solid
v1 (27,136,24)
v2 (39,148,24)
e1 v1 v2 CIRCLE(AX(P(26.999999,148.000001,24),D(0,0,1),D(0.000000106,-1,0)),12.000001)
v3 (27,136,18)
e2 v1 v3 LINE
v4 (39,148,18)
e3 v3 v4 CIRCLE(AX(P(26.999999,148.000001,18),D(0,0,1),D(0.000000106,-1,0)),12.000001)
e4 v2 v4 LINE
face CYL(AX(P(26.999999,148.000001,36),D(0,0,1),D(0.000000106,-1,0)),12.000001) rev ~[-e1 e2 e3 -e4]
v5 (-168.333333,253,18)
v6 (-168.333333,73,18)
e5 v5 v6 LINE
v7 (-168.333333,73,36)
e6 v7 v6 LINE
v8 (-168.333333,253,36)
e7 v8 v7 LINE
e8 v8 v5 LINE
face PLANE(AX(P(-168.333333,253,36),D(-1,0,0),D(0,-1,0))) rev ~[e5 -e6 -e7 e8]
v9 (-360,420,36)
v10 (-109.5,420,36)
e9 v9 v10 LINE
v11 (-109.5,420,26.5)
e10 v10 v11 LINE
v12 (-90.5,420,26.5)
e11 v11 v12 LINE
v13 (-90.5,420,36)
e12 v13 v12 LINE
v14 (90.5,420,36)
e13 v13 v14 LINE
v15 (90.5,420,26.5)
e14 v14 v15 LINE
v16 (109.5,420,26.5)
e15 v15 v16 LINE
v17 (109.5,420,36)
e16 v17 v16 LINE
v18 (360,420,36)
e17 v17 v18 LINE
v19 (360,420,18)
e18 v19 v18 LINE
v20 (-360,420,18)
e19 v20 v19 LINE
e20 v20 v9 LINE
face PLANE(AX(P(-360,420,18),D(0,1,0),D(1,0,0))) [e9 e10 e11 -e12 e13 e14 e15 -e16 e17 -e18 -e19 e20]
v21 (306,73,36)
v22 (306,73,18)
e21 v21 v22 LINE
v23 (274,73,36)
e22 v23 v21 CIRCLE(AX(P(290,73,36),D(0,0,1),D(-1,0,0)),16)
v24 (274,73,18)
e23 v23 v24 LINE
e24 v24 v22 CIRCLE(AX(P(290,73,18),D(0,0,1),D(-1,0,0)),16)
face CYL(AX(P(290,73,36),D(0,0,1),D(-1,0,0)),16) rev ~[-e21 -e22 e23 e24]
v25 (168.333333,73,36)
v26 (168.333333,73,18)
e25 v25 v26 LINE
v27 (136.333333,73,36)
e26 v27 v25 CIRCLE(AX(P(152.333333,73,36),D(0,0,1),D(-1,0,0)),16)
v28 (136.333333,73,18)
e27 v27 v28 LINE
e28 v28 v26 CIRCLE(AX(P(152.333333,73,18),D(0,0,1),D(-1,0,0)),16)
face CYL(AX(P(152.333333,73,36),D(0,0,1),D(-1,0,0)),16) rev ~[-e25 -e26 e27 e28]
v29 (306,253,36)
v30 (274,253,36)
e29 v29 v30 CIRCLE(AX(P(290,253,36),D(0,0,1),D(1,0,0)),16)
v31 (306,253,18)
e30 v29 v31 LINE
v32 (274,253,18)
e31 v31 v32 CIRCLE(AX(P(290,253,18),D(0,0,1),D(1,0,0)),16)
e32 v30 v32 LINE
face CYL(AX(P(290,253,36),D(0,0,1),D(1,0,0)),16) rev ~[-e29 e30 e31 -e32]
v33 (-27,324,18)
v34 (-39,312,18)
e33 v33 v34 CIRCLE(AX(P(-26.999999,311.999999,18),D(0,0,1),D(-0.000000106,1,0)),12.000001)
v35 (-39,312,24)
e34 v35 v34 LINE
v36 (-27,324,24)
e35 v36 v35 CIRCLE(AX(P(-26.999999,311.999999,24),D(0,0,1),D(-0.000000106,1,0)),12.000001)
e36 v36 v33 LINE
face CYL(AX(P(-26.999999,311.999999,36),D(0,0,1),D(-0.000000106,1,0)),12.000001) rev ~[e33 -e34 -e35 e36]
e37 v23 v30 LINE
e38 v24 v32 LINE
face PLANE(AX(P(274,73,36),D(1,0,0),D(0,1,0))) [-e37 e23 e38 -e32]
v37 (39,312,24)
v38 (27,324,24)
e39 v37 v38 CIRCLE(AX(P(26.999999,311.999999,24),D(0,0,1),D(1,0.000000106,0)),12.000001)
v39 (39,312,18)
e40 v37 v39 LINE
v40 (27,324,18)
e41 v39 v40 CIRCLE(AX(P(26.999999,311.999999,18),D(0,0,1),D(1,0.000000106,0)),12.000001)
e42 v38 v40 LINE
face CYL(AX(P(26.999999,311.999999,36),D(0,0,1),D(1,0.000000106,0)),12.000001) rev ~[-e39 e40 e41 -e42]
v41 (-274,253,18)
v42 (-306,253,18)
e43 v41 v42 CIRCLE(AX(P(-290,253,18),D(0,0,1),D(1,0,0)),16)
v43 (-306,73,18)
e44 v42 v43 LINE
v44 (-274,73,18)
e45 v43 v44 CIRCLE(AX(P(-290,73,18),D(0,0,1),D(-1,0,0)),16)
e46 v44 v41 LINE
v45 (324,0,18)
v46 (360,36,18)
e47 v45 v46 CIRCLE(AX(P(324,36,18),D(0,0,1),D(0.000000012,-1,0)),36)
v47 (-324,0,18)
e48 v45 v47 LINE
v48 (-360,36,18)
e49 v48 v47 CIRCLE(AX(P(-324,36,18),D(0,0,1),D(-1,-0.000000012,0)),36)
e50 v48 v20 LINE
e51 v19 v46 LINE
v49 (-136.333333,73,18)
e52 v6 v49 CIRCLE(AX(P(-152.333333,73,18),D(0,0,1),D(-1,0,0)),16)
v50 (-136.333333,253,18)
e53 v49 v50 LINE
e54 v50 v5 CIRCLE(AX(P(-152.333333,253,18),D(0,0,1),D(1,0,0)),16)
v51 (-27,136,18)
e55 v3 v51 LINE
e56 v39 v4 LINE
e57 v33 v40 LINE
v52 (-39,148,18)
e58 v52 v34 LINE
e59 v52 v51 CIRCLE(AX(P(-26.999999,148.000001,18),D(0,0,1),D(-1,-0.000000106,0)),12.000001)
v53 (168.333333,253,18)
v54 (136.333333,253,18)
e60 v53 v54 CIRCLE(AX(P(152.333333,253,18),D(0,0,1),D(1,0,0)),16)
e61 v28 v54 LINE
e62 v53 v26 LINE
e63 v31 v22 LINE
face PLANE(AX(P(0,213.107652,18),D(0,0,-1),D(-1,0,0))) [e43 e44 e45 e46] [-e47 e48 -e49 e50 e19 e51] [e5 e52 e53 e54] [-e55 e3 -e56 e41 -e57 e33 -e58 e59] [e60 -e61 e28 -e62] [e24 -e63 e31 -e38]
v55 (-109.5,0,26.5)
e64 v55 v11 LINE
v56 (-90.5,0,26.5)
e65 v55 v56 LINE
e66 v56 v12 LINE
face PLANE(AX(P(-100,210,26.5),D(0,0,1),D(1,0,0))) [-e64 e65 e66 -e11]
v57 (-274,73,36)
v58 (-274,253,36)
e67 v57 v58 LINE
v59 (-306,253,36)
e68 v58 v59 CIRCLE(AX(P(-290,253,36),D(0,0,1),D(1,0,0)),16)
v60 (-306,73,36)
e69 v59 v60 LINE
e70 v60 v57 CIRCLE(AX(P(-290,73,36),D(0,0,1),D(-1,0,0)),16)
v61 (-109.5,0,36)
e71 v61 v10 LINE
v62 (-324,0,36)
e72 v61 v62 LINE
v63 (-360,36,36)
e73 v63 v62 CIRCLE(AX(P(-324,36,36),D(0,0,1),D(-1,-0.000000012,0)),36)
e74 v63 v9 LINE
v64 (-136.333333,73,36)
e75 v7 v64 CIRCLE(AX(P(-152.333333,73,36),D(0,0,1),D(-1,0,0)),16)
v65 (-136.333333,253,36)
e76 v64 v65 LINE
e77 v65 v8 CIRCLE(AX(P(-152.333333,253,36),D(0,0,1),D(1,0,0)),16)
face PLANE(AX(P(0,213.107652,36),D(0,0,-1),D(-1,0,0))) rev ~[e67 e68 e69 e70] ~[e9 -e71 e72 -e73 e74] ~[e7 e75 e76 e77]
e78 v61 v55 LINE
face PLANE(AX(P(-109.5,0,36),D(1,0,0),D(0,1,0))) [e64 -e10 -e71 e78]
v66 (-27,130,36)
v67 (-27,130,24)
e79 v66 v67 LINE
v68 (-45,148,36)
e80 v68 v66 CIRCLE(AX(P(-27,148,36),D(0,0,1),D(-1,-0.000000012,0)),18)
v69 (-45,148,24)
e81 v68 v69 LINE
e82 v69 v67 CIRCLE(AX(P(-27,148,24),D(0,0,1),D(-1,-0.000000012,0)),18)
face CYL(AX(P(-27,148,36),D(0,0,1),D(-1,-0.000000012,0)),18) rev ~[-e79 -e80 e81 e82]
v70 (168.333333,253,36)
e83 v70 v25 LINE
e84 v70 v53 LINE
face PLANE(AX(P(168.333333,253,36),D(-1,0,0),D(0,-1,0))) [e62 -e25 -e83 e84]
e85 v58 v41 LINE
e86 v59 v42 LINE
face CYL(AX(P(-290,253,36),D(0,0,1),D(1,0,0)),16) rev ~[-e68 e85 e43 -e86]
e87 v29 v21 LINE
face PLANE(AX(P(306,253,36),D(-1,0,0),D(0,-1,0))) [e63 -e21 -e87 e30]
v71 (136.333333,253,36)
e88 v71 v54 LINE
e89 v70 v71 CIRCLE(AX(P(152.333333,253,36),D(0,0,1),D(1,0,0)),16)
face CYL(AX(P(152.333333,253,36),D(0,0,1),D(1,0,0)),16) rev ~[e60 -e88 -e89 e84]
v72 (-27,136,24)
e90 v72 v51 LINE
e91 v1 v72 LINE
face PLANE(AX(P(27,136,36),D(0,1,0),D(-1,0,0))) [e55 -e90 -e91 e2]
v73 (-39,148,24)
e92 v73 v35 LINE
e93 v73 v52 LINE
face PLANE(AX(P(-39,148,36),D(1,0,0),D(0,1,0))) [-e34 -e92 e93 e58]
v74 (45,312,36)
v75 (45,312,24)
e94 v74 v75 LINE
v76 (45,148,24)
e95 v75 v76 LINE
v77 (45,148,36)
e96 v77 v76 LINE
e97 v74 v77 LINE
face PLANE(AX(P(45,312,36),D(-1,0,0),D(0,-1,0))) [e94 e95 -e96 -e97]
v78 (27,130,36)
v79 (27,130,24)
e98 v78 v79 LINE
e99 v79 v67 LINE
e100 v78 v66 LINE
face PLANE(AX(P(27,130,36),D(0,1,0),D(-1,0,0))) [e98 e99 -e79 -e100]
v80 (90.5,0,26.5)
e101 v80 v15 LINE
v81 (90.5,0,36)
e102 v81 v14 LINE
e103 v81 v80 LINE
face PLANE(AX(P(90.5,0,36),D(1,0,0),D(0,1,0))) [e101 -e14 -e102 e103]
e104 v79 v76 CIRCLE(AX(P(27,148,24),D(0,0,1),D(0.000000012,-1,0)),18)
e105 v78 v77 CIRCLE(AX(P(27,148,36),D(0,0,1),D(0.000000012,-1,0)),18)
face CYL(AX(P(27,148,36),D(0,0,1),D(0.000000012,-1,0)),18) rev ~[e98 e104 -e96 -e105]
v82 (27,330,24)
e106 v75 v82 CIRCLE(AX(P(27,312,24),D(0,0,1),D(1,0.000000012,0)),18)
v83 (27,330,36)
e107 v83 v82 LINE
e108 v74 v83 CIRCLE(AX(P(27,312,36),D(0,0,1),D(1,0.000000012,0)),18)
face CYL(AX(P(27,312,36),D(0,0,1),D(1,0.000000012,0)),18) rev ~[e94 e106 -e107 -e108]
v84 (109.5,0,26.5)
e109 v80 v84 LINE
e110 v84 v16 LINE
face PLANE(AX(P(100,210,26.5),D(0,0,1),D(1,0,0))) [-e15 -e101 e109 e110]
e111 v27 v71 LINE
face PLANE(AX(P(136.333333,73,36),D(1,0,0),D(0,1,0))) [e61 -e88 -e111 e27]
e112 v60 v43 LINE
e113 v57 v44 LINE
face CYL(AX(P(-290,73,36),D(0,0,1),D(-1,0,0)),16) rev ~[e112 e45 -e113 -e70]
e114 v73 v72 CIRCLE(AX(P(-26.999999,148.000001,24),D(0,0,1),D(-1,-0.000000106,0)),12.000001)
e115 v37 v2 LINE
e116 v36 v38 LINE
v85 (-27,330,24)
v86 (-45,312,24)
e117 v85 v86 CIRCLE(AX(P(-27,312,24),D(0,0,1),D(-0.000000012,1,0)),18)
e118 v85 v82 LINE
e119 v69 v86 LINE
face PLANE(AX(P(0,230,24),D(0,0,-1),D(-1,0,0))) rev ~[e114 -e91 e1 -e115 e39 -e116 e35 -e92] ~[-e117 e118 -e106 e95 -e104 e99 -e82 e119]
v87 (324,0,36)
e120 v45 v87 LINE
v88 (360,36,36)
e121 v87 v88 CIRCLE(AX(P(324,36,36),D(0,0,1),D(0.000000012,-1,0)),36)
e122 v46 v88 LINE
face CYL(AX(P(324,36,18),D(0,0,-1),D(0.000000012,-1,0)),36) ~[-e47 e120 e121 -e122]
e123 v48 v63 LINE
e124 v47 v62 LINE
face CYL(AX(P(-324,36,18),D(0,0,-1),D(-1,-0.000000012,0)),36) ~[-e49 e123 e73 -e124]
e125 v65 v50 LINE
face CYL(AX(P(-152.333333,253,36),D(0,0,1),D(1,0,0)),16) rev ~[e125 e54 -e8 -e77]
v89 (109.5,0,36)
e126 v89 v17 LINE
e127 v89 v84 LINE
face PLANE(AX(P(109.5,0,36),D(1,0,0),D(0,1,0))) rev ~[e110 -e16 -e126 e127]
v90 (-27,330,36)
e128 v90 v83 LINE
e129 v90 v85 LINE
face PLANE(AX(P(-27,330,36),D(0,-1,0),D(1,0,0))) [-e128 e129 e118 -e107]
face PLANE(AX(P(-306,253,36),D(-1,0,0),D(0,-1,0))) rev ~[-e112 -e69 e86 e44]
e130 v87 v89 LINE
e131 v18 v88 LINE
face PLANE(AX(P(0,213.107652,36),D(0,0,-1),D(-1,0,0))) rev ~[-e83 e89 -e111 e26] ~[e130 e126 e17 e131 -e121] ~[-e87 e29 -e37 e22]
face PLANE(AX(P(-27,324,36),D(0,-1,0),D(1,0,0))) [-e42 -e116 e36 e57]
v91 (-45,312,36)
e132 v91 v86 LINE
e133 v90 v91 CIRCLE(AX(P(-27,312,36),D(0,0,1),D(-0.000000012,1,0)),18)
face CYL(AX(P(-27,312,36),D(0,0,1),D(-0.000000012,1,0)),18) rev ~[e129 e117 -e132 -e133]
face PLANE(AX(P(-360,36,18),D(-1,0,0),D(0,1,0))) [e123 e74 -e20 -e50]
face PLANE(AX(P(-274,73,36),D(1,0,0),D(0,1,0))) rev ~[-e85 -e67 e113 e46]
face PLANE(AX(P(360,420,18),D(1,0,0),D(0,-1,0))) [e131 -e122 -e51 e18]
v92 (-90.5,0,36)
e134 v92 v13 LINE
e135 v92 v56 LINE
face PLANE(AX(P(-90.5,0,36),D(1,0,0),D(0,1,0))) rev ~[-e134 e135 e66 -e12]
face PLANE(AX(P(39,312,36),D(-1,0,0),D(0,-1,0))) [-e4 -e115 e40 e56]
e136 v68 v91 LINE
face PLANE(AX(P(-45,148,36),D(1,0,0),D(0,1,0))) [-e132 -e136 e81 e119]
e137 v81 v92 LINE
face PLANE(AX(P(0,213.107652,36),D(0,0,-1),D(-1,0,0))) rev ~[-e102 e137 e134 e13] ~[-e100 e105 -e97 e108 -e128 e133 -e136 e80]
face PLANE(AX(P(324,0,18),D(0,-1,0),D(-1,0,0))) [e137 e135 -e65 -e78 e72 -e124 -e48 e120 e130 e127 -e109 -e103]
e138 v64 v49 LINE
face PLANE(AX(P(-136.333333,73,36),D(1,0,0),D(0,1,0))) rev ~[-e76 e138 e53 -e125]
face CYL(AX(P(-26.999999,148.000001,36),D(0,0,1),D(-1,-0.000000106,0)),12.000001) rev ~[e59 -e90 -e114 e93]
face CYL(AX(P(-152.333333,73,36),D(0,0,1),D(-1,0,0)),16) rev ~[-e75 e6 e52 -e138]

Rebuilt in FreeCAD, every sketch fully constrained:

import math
import FreeCAD as App
import Part
import Sketcher

V = App.Vector
Q = App.Units.Quantity

doc = App.newDocument("Part")
body = doc.addObject("PartDesign::Body", "Body")

# Sketch on XY plane
sketch1 = body.newObject("Sketcher::SketchObject", "Sketch")
sketch1.AttachmentSupport = (doc.getObject("XY_Plane"), [""])
sketch1.MapMode = "FlatFace"
sketch1.addGeometry([
    Part.LineSegment(V(360, 420, 0), V(-360, 420, 0)),  # 0
    Part.LineSegment(V(-360, 420, 0), V(-360, 36, 0)),  # 1
    Part.ArcOfCircle(Part.Circle(V(-324, 36, 0), V(0, 0, 1), 36), math.radians(-180), math.radians(-90)),  # 2
    Part.LineSegment(V(-324, 0, 0), V(324, 0, 0)),  # 3
    Part.ArcOfCircle(Part.Circle(V(324, 36, 0), V(0, 0, 1), 36), math.radians(-90), math.radians(0)),  # 4
    Part.LineSegment(V(360, 36, 0), V(360, 420, 0)),  # 5
], False)
sketch1.addConstraint([
    Sketcher.Constraint("Coincident", 0, 2, 1, 1),
    Sketcher.Constraint("Tangent", 1, 2, 2, 1),
    Sketcher.Constraint("Tangent", 2, 2, 3, 1),
    Sketcher.Constraint("Tangent", 3, 2, 4, 1),
    Sketcher.Constraint("Tangent", 4, 2, 5, 1),
    Sketcher.Constraint("Coincident", 5, 2, 0, 1),
    Sketcher.Constraint("Horizontal", 0),
    Sketcher.Constraint("Vertical", 1),
    Sketcher.Constraint("Horizontal", 3),
    Sketcher.Constraint("Vertical", 5),
    Sketcher.Constraint("Equal", 2, 4),
    Sketcher.Constraint("Symmetric", 2, 2, 3, 2, -1, 1),
    Sketcher.Constraint("Radius", 2, Q("36 mm")),
    Sketcher.Constraint("DistanceX", 0, 2, 0, 1, Q("720 mm")),
    Sketcher.Constraint("DistanceY", 1, 2, 1, 1, Q("384 mm")),
])
pad1 = body.newObject("PartDesign::Pad", "Pad")
pad1.Profile = sketch1
pad1.Length = 18

# Sketch on XY plane
sketch2 = body.newObject("Sketcher::SketchObject", "Sketch001")
sketch2.AttachmentSupport = (doc.getObject("XY_Plane"), [""])
sketch2.MapMode = "FlatFace"
sketch2.AttachmentOffset = App.Placement(V(0, 0, 18), App.Rotation())
sketch2.addGeometry([
    Part.ArcOfCircle(Part.Circle(V(-290, 253, 0), V(0, 0, 1), 16), math.radians(0), math.radians(180)),  # 0
    Part.LineSegment(V(-306, 253, 0), V(-306, 73, 0)),  # 1
    Part.ArcOfCircle(Part.Circle(V(-290, 73, 0), V(0, 0, 1), 16), math.radians(180), math.radians(360)),  # 2
    Part.LineSegment(V(-274, 73, 0), V(-274, 253, 0)),  # 3
    Part.ArcOfCircle(Part.Circle(V(-152, 253, 0), V(0, 0, 1), 16), math.radians(0), math.radians(180)),  # 4
    Part.LineSegment(V(-168, 253, 0), V(-168, 73, 0)),  # 5
    Part.ArcOfCircle(Part.Circle(V(-152, 73, 0), V(0, 0, 1), 16), math.radians(180), math.radians(360)),  # 6
    Part.LineSegment(V(-136, 73, 0), V(-136, 253, 0)),  # 7
    Part.ArcOfCircle(Part.Circle(V(290, 253, 0), V(0, 0, 1), 16), math.radians(0), math.radians(180)),  # 8
    Part.LineSegment(V(274, 253, 0), V(274, 73, 0)),  # 9
    Part.ArcOfCircle(Part.Circle(V(290, 73, 0), V(0, 0, 1), 16), math.radians(180), math.radians(360)),  # 10
    Part.LineSegment(V(306, 73, 0), V(306, 253, 0)),  # 11
    Part.ArcOfCircle(Part.Circle(V(152, 253, 0), V(0, 0, 1), 16), math.radians(0), math.radians(180)),  # 12
    Part.LineSegment(V(136, 253, 0), V(136, 73, 0)),  # 13
    Part.ArcOfCircle(Part.Circle(V(152, 73, 0), V(0, 0, 1), 16), math.radians(180), math.radians(360)),  # 14
    Part.LineSegment(V(168, 73, 0), V(168, 253, 0)),  # 15
    Part.LineSegment(V(27, 324, 0), V(-27, 324, 0)),  # 16
    Part.ArcOfCircle(Part.Circle(V(-27, 312, 0), V(0, 0, 1), 12), math.radians(90), math.radians(180)),  # 17
    Part.LineSegment(V(-39, 312, 0), V(-39, 148, 0)),  # 18
    Part.ArcOfCircle(Part.Circle(V(-27, 148, 0), V(0, 0, 1), 12), math.radians(-180), math.radians(-90)),  # 19
    Part.LineSegment(V(-27, 136, 0), V(27, 136, 0)),  # 20
    Part.ArcOfCircle(Part.Circle(V(27, 148, 0), V(0, 0, 1), 12), math.radians(-90), math.radians(0)),  # 21
    Part.LineSegment(V(39, 148, 0), V(39, 312, 0)),  # 22
    Part.ArcOfCircle(Part.Circle(V(27, 312, 0), V(0, 0, 1), 12), math.radians(0), math.radians(90)),  # 23
], False)
sketch2.addConstraint([
    Sketcher.Constraint("Tangent", 0, 2, 1, 1),
    Sketcher.Constraint("Tangent", 1, 2, 2, 1),
    Sketcher.Constraint("Tangent", 2, 2, 3, 1),
    Sketcher.Constraint("Tangent", 3, 2, 0, 1),
    Sketcher.Constraint("Tangent", 4, 2, 5, 1),
    Sketcher.Constraint("Tangent", 5, 2, 6, 1),
    Sketcher.Constraint("Tangent", 6, 2, 7, 1),
    Sketcher.Constraint("Tangent", 7, 2, 4, 1),
    Sketcher.Constraint("Tangent", 8, 2, 9, 1),
    Sketcher.Constraint("Tangent", 9, 2, 10, 1),
    Sketcher.Constraint("Tangent", 10, 2, 11, 1),
    Sketcher.Constraint("Tangent", 11, 2, 8, 1),
    Sketcher.Constraint("Tangent", 12, 2, 13, 1),
    Sketcher.Constraint("Tangent", 13, 2, 14, 1),
    Sketcher.Constraint("Tangent", 14, 2, 15, 1),
    Sketcher.Constraint("Tangent", 15, 2, 12, 1),
    Sketcher.Constraint("Tangent", 16, 2, 17, 1),
    Sketcher.Constraint("Tangent", 17, 2, 18, 1),
    Sketcher.Constraint("Tangent", 18, 2, 19, 1),
    Sketcher.Constraint("Tangent", 19, 2, 20, 1),
    Sketcher.Constraint("Tangent", 20, 2, 21, 1),
    Sketcher.Constraint("Tangent", 21, 2, 22, 1),
    Sketcher.Constraint("Tangent", 22, 2, 23, 1),
    Sketcher.Constraint("Tangent", 23, 2, 16, 1),
    Sketcher.Constraint("Vertical", 1),
    Sketcher.Constraint("Vertical", 3),
    Sketcher.Constraint("Vertical", 5),
    Sketcher.Constraint("Vertical", 7),
    Sketcher.Constraint("Vertical", 9),
    Sketcher.Constraint("Vertical", 11),
    Sketcher.Constraint("Vertical", 13),
    Sketcher.Constraint("Vertical", 15),
    Sketcher.Constraint("Horizontal", 16),
    Sketcher.Constraint("Vertical", 18),
    Sketcher.Constraint("Horizontal", 20),
    Sketcher.Constraint("Vertical", 22),
    Sketcher.Constraint("Equal", 2, 4),
    Sketcher.Constraint("Equal", 6, 8),
    Sketcher.Constraint("Equal", 10, 12),
    Sketcher.Constraint("Equal", 17, 19),
    Sketcher.Constraint("Equal", 19, 21),
    Sketcher.Constraint("Equal", 21, 23),
    Sketcher.Constraint("Symmetric", 0, 3, 8, 3, -2),
    Sketcher.Constraint("Symmetric", 4, 3, 12, 3, -2),
    Sketcher.Constraint("Horizontal", 0, 3, 4, 3),
    Sketcher.Constraint("Horizontal", 2, 3, 6, 3),
    Sketcher.Constraint("Horizontal", 6, 3, 10, 3),
    Sketcher.Constraint("Horizontal", 10, 3, 14, 3),
    Sketcher.Constraint("Radius", 0, Q("16 mm")),
    Sketcher.Constraint("Radius", 17, Q("12.000001 mm")),
    Sketcher.Constraint("DistanceX", 16, 2, 16, 1, Q("54 mm")),
    Sketcher.Constraint("DistanceY", 1, 2, 1, 1, Q("180 mm")),
    Sketcher.Constraint("DistanceY", 18, 2, 18, 1, Q("164 mm")),
    Sketcher.Constraint("DistanceX", 0, 3, -1, 1, Q("290 mm")),
    Sketcher.Constraint("DistanceY", -1, 1, 0, 3, Q("253 mm")),
    Sketcher.Constraint("DistanceX", 17, 3, -1, 1, Q("26.999999 mm")),
    Sketcher.Constraint("DistanceY", -1, 1, 17, 3, Q("311.999999 mm")),
    Sketcher.Constraint("DistanceX", 17, 3, 12, 3, Q("179.333332 mm")),
])
pocket1 = body.newObject("PartDesign::Pocket", "Pocket")
pocket1.Profile = sketch2
pocket1.Length = 18

# Sketch on XY plane
sketch3 = body.newObject("Sketcher::SketchObject", "Sketch002")
sketch3.AttachmentSupport = (doc.getObject("XY_Plane"), [""])
sketch3.MapMode = "FlatFace"
sketch3.AttachmentOffset = App.Placement(V(0, 0, 18), App.Rotation())
sketch3.addGeometry([
    Part.LineSegment(V(-110, 420, 0), V(-110, 0, 0)),  # 0
    Part.LineSegment(V(-110, 0, 0), V(-90, 0, 0)),  # 1
    Part.LineSegment(V(-90, 0, 0), V(-90, 420, 0)),  # 2
    Part.LineSegment(V(-90, 420, 0), V(-110, 420, 0)),  # 3
    Part.LineSegment(V(90, 420, 0), V(90, 0, 0)),  # 4
    Part.LineSegment(V(90, 0, 0), V(110, 0, 0)),  # 5
    Part.LineSegment(V(110, 0, 0), V(110, 420, 0)),  # 6
    Part.LineSegment(V(110, 420, 0), V(90, 420, 0)),  # 7
], False)
sketch3.addConstraint([
    Sketcher.Constraint("Coincident", 0, 2, 1, 1),
    Sketcher.Constraint("Coincident", 1, 2, 2, 1),
    Sketcher.Constraint("Coincident", 2, 2, 3, 1),
    Sketcher.Constraint("Coincident", 3, 2, 0, 1),
    Sketcher.Constraint("Coincident", 4, 2, 5, 1),
    Sketcher.Constraint("Coincident", 5, 2, 6, 1),
    Sketcher.Constraint("Coincident", 6, 2, 7, 1),
    Sketcher.Constraint("Coincident", 7, 2, 4, 1),
    Sketcher.Constraint("Vertical", 0),
    Sketcher.Constraint("Horizontal", 1),
    Sketcher.Constraint("Vertical", 2),
    Sketcher.Constraint("Horizontal", 3),
    Sketcher.Constraint("Vertical", 4),
    Sketcher.Constraint("Horizontal", 5),
    Sketcher.Constraint("Vertical", 6),
    Sketcher.Constraint("Horizontal", 7),
    Sketcher.Constraint("Symmetric", 1, 2, 4, 2, -1, 1),
    Sketcher.Constraint("Symmetric", 0, 2, 5, 2, -2),
    Sketcher.Constraint("Horizontal", 3, 2, 6, 2),
    Sketcher.Constraint("DistanceX", 1, 1, 1, 2, Q("19 mm")),
    Sketcher.Constraint("DistanceY", 0, 2, 0, 1, Q("420 mm")),
    Sketcher.Constraint("DistanceX", 1, 2, 4, 2, Q("181 mm")),
])
pocket2 = body.newObject("PartDesign::Pocket", "Pocket001")
pocket2.Profile = sketch3
pocket2.Length = 9.5

# Sketch on XY plane
sketch4 = body.newObject("Sketcher::SketchObject", "Sketch003")
sketch4.AttachmentSupport = (doc.getObject("XY_Plane"), [""])
sketch4.MapMode = "FlatFace"
sketch4.AttachmentOffset = App.Placement(V(0, 0, 18), App.Rotation())
sketch4.addGeometry([
    Part.LineSegment(V(27, 330, 0), V(-27, 330, 0)),  # 0
    Part.ArcOfCircle(Part.Circle(V(-27, 312, 0), V(0, 0, 1), 18), math.radians(90), math.radians(180)),  # 1
    Part.LineSegment(V(-45, 312, 0), V(-45, 148, 0)),  # 2
    Part.ArcOfCircle(Part.Circle(V(-27, 148, 0), V(0, 0, 1), 18), math.radians(-180), math.radians(-90)),  # 3
    Part.LineSegment(V(-27, 130, 0), V(27, 130, 0)),  # 4
    Part.ArcOfCircle(Part.Circle(V(27, 148, 0), V(0, 0, 1), 18), math.radians(-90), math.radians(0)),  # 5
    Part.LineSegment(V(45, 148, 0), V(45, 312, 0)),  # 6
    Part.ArcOfCircle(Part.Circle(V(27, 312, 0), V(0, 0, 1), 18), math.radians(0), math.radians(90)),  # 7
], False)
sketch4.addConstraint([
    Sketcher.Constraint("Tangent", 0, 2, 1, 1),
    Sketcher.Constraint("Tangent", 1, 2, 2, 1),
    Sketcher.Constraint("Tangent", 2, 2, 3, 1),
    Sketcher.Constraint("Tangent", 3, 2, 4, 1),
    Sketcher.Constraint("Tangent", 4, 2, 5, 1),
    Sketcher.Constraint("Tangent", 5, 2, 6, 1),
    Sketcher.Constraint("Tangent", 6, 2, 7, 1),
    Sketcher.Constraint("Tangent", 7, 2, 0, 1),
    Sketcher.Constraint("Horizontal", 0),
    Sketcher.Constraint("Vertical", 2),
    Sketcher.Constraint("Horizontal", 4),
    Sketcher.Constraint("Vertical", 6),
    Sketcher.Constraint("Equal", 1, 3),
    Sketcher.Constraint("Equal", 3, 5),
    Sketcher.Constraint("Equal", 5, 7),
    Sketcher.Constraint("Radius", 1, Q("18 mm")),
    Sketcher.Constraint("DistanceX", 0, 2, 0, 1, Q("54 mm")),
    Sketcher.Constraint("DistanceY", 2, 2, 2, 1, Q("164 mm")),
    Sketcher.Constraint("DistanceX", 1, 3, -1, 1, Q("27 mm")),
    Sketcher.Constraint("DistanceY", -1, 1, 1, 3, Q("312 mm")),
])
pocket3 = body.newObject("PartDesign::Pocket", "Pocket002")
pocket3.Profile = sketch4
pocket3.Length = 12
body2 = doc.addObject("PartDesign::Body", "Body001")
doc.recompute()

body.Placement = App.Placement(V(0, 0, 18), App.Rotation(V(0, 0, 1), 0))
boolean = body2.newObject("PartDesign::Boolean", "Boolean")
boolean.Type = "Fuse"
boolean.addObjects([body])

doc.recompute()
